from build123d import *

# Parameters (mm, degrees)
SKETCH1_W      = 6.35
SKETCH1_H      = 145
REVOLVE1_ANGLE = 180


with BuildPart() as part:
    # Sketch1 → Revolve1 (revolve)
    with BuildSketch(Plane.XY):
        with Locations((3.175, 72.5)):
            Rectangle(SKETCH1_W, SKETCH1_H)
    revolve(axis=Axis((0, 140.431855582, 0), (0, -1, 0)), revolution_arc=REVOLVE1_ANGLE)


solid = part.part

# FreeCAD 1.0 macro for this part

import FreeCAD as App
import Part
import Sketcher
Q = App.Units.Quantity


def add_polygon(sketch, points):
    """Adds a closed chain of lines whose ends are joined by coincident constraints."""
    first, n = sketch.GeometryCount, len(points)
    for a, b in zip(points, points[1:] + points[:1]):
        sketch.addGeometry(Part.LineSegment(App.Vector(*a, 0), App.Vector(*b, 0)), False)
    for i in range(n):
        sketch.addConstraint(Sketcher.Constraint("Coincident", first + i, 2, first + (i + 1) % n, 1))

doc = App.newDocument("Part")
params = doc.addObject("Spreadsheet::Sheet", "Params")
for row, (alias, value) in enumerate([
    ("sketch1_height", "145 mm"),
    ("sketch1_width", "6.35 mm"),
    ("revolution_angle", "180 deg"),
], start=1):
    params.set(f"A{row}", alias)
    params.set(f"B{row}", "=" + value)
    params.setAlias(f"B{row}", alias)

body = doc.addObject("PartDesign::Body", "Body")

# Sketch on XY plane
sketch1 = body.newObject("Sketcher::SketchObject", "Sketch")
sketch1.AttachmentSupport = (doc.getObject("XY_Plane"), [""])
sketch1.MapMode = "FlatFace"
add_polygon(sketch1, [(0, 145), (0, 0), (6, 0), (6, 145)])  # lines 0-3
sketch1.addConstraint(Sketcher.Constraint("Vertical", 0))
sketch1.addConstraint(Sketcher.Constraint("Horizontal", 1))
sketch1.addConstraint(Sketcher.Constraint("Vertical", 2))
sketch1.addConstraint(Sketcher.Constraint("Horizontal", 3))
sketch1.addConstraint(Sketcher.Constraint("Coincident", 0, 2, -1, 1))
sketch1.addConstraint(Sketcher.Constraint("DistanceY", 0, 2, 0, 1, Q("145 mm")))
sketch1.addConstraint(Sketcher.Constraint("DistanceX", 1, 1, 1, 2, Q("6.35 mm")))
sketch1.setExpression("Constraints[9]", "Params.sketch1_height")
sketch1.setExpression("Constraints[10]", "Params.sketch1_width")
revolution = body.newObject("PartDesign::Revolution", "Revolution")
revolution.Profile = sketch1
revolution.ReferenceAxis = (sketch1, ["V_Axis"])
revolution.setExpression("Angle", "Params.revolution_angle")
revolution.Reversed = True

doc.recompute()
